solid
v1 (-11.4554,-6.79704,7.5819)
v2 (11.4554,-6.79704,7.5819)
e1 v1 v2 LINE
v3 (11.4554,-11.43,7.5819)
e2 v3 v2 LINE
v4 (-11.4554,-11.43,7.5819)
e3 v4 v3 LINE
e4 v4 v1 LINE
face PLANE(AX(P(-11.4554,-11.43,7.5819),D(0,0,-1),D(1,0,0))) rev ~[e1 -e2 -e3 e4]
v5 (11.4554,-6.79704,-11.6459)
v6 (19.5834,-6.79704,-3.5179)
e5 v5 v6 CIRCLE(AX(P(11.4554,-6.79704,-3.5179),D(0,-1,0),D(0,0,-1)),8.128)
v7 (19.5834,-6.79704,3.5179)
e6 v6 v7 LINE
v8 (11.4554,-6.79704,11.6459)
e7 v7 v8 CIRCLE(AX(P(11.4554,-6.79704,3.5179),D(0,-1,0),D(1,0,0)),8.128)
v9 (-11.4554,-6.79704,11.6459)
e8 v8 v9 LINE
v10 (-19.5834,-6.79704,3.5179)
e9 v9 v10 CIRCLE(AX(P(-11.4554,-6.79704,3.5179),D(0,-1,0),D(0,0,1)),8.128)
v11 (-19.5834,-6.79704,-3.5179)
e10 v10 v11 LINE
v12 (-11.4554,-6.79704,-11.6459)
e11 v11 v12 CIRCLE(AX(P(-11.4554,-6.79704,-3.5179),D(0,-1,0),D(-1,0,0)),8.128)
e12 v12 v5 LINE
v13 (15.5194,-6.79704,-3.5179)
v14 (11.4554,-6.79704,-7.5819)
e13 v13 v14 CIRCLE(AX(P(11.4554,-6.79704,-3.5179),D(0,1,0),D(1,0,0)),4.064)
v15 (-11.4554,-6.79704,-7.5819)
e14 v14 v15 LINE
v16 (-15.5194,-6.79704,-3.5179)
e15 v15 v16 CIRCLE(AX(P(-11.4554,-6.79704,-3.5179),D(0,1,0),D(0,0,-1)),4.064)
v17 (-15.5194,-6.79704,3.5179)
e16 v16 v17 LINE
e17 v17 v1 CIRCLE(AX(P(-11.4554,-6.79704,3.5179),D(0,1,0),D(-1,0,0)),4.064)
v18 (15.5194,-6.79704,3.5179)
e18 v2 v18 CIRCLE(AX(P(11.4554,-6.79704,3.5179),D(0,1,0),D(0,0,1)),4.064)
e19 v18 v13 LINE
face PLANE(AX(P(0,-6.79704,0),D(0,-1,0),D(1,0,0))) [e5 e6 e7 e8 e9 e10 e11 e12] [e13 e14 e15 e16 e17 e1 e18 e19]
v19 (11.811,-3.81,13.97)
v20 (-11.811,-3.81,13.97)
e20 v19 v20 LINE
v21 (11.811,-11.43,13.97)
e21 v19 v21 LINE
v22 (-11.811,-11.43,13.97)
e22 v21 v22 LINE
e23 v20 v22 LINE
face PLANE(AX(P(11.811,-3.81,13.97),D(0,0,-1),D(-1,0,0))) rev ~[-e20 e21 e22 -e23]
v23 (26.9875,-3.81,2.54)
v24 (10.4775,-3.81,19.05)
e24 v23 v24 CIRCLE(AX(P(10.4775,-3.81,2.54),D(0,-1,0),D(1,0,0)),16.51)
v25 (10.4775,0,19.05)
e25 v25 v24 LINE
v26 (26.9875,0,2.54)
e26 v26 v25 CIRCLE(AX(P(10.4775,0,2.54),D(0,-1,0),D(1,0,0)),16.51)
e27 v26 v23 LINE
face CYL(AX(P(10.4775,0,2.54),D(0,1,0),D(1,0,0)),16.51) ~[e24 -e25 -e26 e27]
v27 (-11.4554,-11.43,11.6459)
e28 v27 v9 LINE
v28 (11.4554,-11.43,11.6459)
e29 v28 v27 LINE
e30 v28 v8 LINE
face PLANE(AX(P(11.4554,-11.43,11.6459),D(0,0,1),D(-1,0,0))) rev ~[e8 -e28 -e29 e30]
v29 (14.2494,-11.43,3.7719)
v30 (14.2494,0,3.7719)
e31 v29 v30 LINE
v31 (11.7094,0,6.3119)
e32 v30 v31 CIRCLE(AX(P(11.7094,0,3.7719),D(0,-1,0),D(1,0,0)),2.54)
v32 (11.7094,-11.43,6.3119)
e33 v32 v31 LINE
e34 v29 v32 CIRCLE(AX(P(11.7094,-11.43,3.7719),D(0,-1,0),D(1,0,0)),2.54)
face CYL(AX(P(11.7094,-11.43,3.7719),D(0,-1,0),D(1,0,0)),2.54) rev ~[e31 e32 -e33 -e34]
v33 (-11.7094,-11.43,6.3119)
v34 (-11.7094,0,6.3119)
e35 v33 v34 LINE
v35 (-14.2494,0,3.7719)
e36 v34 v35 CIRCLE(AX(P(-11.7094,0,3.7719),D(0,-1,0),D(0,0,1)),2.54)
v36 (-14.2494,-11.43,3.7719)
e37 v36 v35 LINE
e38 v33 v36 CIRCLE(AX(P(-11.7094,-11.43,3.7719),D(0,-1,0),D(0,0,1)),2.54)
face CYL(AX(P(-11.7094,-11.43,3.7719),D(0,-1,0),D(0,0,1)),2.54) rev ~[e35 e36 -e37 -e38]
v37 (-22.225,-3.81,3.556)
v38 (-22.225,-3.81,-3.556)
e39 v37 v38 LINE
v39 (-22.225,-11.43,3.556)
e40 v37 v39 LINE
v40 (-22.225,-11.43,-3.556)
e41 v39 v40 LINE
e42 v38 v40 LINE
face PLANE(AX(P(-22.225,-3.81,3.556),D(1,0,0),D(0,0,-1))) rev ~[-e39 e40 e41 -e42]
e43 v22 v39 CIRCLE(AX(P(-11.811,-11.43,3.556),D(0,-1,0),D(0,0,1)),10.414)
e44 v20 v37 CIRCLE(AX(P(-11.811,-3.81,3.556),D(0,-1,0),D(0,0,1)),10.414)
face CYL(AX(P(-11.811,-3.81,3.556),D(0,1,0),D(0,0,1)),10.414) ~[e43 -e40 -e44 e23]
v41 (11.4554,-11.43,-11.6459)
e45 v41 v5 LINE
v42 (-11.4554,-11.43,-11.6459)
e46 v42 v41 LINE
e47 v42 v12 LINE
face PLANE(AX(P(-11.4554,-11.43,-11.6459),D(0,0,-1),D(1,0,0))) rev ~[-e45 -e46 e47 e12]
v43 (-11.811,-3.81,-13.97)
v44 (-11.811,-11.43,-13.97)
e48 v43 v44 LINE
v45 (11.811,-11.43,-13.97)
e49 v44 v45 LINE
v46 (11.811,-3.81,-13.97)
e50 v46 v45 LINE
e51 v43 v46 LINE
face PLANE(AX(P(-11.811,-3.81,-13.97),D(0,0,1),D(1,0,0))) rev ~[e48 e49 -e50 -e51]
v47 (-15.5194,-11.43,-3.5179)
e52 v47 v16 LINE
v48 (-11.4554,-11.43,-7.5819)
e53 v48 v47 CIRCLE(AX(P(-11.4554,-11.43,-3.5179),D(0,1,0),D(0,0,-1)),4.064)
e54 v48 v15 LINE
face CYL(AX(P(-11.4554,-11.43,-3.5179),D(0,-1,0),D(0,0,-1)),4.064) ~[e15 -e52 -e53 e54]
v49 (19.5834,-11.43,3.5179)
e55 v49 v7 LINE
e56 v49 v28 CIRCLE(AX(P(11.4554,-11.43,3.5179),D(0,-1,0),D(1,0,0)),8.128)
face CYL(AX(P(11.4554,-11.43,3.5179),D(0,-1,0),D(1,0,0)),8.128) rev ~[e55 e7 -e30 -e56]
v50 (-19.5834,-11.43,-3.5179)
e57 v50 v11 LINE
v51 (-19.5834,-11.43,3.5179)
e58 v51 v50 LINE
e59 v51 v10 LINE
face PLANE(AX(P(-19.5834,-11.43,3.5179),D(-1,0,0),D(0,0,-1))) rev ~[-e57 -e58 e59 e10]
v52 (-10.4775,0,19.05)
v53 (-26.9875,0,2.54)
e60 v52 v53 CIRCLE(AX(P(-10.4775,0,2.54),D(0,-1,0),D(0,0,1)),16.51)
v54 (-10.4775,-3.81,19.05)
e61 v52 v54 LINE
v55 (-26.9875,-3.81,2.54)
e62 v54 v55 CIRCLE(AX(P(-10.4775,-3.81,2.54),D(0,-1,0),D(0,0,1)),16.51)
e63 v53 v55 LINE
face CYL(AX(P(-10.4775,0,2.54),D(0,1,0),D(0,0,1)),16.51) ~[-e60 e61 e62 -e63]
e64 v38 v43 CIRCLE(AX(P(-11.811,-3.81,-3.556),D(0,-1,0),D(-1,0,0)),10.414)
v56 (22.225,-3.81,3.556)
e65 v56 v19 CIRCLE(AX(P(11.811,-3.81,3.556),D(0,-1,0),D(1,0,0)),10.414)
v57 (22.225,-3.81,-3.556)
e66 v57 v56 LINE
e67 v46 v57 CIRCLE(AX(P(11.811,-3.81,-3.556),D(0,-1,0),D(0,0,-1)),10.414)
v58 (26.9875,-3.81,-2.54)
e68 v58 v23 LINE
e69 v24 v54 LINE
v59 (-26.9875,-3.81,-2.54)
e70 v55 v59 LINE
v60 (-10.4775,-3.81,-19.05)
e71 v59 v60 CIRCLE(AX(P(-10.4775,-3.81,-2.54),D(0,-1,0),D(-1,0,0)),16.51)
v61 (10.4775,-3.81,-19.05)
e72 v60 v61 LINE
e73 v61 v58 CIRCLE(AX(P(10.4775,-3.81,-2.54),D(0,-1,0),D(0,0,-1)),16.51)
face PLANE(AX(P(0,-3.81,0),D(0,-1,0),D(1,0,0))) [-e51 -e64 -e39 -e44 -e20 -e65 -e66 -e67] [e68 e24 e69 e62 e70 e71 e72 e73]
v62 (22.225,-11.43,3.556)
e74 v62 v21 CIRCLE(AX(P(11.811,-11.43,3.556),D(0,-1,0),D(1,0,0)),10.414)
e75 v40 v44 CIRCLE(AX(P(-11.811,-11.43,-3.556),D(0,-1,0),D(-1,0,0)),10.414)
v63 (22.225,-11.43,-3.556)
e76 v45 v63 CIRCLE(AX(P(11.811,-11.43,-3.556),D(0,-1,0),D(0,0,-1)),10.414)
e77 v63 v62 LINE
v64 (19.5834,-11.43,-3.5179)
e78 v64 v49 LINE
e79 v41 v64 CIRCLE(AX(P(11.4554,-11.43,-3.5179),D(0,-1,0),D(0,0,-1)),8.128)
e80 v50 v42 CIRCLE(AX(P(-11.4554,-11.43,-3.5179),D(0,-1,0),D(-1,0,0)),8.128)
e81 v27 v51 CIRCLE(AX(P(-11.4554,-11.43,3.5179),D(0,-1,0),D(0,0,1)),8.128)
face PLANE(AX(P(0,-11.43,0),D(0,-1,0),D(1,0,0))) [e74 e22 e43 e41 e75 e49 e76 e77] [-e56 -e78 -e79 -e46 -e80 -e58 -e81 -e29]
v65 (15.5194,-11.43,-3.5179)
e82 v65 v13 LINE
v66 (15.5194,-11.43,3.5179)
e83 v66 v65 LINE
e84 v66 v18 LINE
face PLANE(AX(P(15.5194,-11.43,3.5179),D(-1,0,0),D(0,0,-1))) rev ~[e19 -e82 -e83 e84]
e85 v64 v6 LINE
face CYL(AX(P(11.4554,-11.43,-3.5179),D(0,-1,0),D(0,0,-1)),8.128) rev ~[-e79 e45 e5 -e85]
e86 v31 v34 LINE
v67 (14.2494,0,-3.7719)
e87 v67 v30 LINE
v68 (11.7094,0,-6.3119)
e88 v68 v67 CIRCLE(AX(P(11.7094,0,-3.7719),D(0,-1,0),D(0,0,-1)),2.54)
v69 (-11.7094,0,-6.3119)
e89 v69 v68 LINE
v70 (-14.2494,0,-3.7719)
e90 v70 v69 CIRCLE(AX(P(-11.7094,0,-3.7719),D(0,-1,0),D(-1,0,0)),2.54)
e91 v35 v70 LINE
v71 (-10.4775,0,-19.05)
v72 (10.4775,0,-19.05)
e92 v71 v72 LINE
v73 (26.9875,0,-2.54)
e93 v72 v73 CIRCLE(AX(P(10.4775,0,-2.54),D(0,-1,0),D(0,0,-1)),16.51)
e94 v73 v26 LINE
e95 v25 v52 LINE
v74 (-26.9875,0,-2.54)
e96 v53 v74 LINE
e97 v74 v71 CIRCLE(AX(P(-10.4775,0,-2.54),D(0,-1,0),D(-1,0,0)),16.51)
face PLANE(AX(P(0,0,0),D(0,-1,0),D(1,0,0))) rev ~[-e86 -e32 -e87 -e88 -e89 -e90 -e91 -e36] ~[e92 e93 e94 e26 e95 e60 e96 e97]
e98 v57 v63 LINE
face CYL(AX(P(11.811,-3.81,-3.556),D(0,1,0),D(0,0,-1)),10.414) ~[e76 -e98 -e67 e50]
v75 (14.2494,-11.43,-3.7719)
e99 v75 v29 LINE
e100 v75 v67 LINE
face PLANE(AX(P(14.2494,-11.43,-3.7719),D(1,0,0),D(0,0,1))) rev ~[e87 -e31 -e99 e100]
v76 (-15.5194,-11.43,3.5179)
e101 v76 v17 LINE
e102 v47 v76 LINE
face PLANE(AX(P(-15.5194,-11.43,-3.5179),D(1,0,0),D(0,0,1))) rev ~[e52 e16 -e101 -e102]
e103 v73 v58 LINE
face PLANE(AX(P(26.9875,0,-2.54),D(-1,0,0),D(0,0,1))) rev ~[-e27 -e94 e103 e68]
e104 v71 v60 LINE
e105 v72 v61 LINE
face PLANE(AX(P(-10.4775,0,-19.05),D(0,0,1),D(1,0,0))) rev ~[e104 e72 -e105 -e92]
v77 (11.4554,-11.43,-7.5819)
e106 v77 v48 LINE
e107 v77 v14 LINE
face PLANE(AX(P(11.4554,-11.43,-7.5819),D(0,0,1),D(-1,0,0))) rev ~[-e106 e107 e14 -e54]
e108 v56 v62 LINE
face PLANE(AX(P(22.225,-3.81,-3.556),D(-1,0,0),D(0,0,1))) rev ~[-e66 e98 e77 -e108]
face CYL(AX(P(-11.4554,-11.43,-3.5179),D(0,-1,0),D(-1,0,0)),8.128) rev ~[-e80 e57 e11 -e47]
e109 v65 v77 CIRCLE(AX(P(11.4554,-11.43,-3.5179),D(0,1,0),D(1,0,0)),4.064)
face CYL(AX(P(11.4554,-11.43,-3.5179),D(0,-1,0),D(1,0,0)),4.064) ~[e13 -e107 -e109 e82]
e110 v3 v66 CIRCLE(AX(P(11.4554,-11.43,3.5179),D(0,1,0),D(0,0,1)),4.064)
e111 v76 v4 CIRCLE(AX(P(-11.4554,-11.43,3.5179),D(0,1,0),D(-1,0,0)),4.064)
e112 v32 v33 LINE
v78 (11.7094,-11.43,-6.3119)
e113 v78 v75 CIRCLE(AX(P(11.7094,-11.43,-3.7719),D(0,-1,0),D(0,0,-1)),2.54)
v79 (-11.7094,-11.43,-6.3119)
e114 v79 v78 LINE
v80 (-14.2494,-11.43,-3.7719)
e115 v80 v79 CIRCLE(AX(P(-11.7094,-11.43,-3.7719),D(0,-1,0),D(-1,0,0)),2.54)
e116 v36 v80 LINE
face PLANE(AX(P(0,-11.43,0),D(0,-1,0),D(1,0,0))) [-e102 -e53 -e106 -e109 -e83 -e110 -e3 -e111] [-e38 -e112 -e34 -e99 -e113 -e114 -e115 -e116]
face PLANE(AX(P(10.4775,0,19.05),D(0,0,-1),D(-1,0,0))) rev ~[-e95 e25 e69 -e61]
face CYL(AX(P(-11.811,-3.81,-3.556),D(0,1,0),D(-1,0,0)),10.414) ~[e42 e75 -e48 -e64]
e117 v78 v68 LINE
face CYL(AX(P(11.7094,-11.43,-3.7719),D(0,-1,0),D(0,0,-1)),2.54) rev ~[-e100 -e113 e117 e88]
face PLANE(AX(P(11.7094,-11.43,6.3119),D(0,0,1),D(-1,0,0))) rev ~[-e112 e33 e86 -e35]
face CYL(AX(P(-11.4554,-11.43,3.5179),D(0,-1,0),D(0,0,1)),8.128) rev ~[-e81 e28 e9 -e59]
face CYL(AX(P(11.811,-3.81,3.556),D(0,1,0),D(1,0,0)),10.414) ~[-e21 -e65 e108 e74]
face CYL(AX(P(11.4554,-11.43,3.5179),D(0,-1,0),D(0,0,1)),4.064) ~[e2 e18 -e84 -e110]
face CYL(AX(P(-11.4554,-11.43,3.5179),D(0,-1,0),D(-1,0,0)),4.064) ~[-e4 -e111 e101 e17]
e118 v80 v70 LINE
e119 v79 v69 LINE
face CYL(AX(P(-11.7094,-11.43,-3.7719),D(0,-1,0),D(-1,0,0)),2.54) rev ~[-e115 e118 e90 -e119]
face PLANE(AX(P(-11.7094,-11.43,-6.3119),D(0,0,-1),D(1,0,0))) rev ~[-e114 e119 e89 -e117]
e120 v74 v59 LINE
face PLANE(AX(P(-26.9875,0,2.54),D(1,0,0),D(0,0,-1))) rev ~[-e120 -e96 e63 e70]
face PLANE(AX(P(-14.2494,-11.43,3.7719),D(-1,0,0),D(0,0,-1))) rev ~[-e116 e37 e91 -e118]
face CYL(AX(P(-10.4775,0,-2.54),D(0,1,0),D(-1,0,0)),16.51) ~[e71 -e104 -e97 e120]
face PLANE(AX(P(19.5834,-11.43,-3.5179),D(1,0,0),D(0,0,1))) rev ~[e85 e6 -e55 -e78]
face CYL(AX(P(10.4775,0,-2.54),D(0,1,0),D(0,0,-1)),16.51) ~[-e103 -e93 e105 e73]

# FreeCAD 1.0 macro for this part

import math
import FreeCAD as App
import Part
import Sketcher

V = App.Vector
Q = App.Units.Quantity

doc = App.newDocument("Part")
body = doc.addObject("PartDesign::Body", "Body")

# Sketch on XZ plane
sketch1 = body.newObject("Sketcher::SketchObject", "Sketch")
sketch1.AttachmentSupport = (doc.getObject("XZ_Plane"), [""])
sketch1.MapMode = "FlatFace"
sketch1.addGeometry([
    Part.ArcOfCircle(Part.Circle(V(-10, -3, 0), V(0, 0, 1), 17), math.radians(180), math.radians(270)),  # 0
    Part.LineSegment(V(-10, -19, 0), V(10, -19, 0)),  # 1
    Part.ArcOfCircle(Part.Circle(V(10, -3, 0), V(0, 0, 1), 17), math.radians(-90), math.radians(0)),  # 2
    Part.LineSegment(V(27, -3, 0), V(27, 3, 0)),  # 3
    Part.ArcOfCircle(Part.Circle(V(10, 3, 0), V(0, 0, 1), 17), math.radians(0), math.radians(90)),  # 4
    Part.LineSegment(V(10, 19, 0), V(-10, 19, 0)),  # 5
    Part.ArcOfCircle(Part.Circle(V(-10, 3, 0), V(0, 0, 1), 17), math.radians(90), math.radians(180)),  # 6
    Part.LineSegment(V(-27, 3, 0), V(-27, -3, 0)),  # 7
], False)
sketch1.addConstraint([
    Sketcher.Constraint("Tangent", 0, 2, 1, 1),
    Sketcher.Constraint("Tangent", 1, 2, 2, 1),
    Sketcher.Constraint("Tangent", 2, 2, 3, 1),
    Sketcher.Constraint("Tangent", 3, 2, 4, 1),
    Sketcher.Constraint("Tangent", 4, 2, 5, 1),
    Sketcher.Constraint("Tangent", 5, 2, 6, 1),
    Sketcher.Constraint("Tangent", 6, 2, 7, 1),
    Sketcher.Constraint("Tangent", 7, 2, 0, 1),
    Sketcher.Constraint("Horizontal", 1),
    Sketcher.Constraint("Vertical", 3),
    Sketcher.Constraint("Horizontal", 5),
    Sketcher.Constraint("Vertical", 7),
    Sketcher.Constraint("Equal", 0, 2),
    Sketcher.Constraint("Equal", 2, 4),
    Sketcher.Constraint("Equal", 4, 6),
    Sketcher.Constraint("Symmetric", 0, 3, 4, 3, -1, 1),
    Sketcher.Constraint("Radius", 0, Q("0.65 in")),
    Sketcher.Constraint("DistanceY", 3, 1, 3, 2, Q("0.2 in")),
    Sketcher.Constraint("DistanceX", 1, 1, 1, 2, Q("0.825 in")),
])
pad1 = body.newObject("PartDesign::Pad", "Pad")
pad1.Profile = sketch1
pad1.Length = Q("0.15 in")

# Sketch on XZ plane
sketch2 = body.newObject("Sketcher::SketchObject", "Sketch001")
sketch2.AttachmentSupport = (doc.getObject("XZ_Plane"), [""])
sketch2.MapMode = "FlatFace"
sketch2.AttachmentOffset = App.Placement(V(0, 0, 0.15 * 25.4), App.Rotation())
sketch2.addGeometry([
    Part.ArcOfCircle(Part.Circle(V(-12, -4, 0), V(0, 0, 1), 10), math.radians(180), math.radians(270)),  # 0
    Part.LineSegment(V(-12, -14, 0), V(12, -14, 0)),  # 1
    Part.ArcOfCircle(Part.Circle(V(12, -4, 0), V(0, 0, 1), 10), math.radians(-90), math.radians(0)),  # 2
    Part.LineSegment(V(22, -4, 0), V(22, 4, 0)),  # 3
    Part.ArcOfCircle(Part.Circle(V(12, 4, 0), V(0, 0, 1), 10), math.radians(0), math.radians(90)),  # 4
    Part.LineSegment(V(12, 14, 0), V(-12, 14, 0)),  # 5
    Part.ArcOfCircle(Part.Circle(V(-12, 4, 0), V(0, 0, 1), 10), math.radians(90), math.radians(180)),  # 6
    Part.LineSegment(V(-22, 4, 0), V(-22, -4, 0)),  # 7
], False)
sketch2.addConstraint([
    Sketcher.Constraint("Tangent", 0, 2, 1, 1),
    Sketcher.Constraint("Tangent", 1, 2, 2, 1),
    Sketcher.Constraint("Tangent", 2, 2, 3, 1),
    Sketcher.Constraint("Tangent", 3, 2, 4, 1),
    Sketcher.Constraint("Tangent", 4, 2, 5, 1),
    Sketcher.Constraint("Tangent", 5, 2, 6, 1),
    Sketcher.Constraint("Tangent", 6, 2, 7, 1),
    Sketcher.Constraint("Tangent", 7, 2, 0, 1),
    Sketcher.Constraint("Horizontal", 1),
    Sketcher.Constraint("Vertical", 3),
    Sketcher.Constraint("Horizontal", 5),
    Sketcher.Constraint("Vertical", 7),
    Sketcher.Constraint("Equal", 0, 2),
    Sketcher.Constraint("Equal", 2, 4),
    Sketcher.Constraint("Equal", 4, 6),
    Sketcher.Constraint("Symmetric", 0, 3, 4, 3, -1, 1),
    Sketcher.Constraint("Radius", 0, Q("0.41 in")),
    Sketcher.Constraint("DistanceX", 1, 1, 1, 2, Q("0.93 in")),
    Sketcher.Constraint("DistanceY", 3, 1, 3, 2, Q("0.28 in")),
])
pad2 = body.newObject("PartDesign::Pad", "Pad001")
pad2.Profile = sketch2
pad2.Length = Q("0.3 in")

# Sketch on XZ plane
sketch3 = body.newObject("Sketcher::SketchObject", "Sketch002")
sketch3.AttachmentSupport = (doc.getObject("XZ_Plane"), [""])
sketch3.MapMode = "FlatFace"
sketch3.AttachmentOffset = App.Placement(V(0, 0, 0.45 * 25.4), App.Rotation())
sketch3.addGeometry([
    Part.ArcOfCircle(Part.Circle(V(-11.7, -3.8, 0), V(0, 0, 1), 2.5), math.radians(180), math.radians(270)),  # 0
    Part.LineSegment(V(-11.7, -6.3, 0), V(11.7, -6.3, 0)),  # 1
    Part.ArcOfCircle(Part.Circle(V(11.7, -3.8, 0), V(0, 0, 1), 2.5), math.radians(-90), math.radians(0)),  # 2
    Part.LineSegment(V(14.2, -3.8, 0), V(14.2, 3.8, 0)),  # 3
    Part.ArcOfCircle(Part.Circle(V(11.7, 3.8, 0), V(0, 0, 1), 2.5), math.radians(0), math.radians(90)),  # 4
    Part.LineSegment(V(11.7, 6.3, 0), V(-11.7, 6.3, 0)),  # 5
    Part.ArcOfCircle(Part.Circle(V(-11.7, 3.8, 0), V(0, 0, 1), 2.5), math.radians(90), math.radians(180)),  # 6
    Part.LineSegment(V(-14.2, 3.8, 0), V(-14.2, -3.8, 0)),  # 7
], False)
sketch3.addConstraint([
    Sketcher.Constraint("Tangent", 0, 2, 1, 1),
    Sketcher.Constraint("Tangent", 1, 2, 2, 1),
    Sketcher.Constraint("Tangent", 2, 2, 3, 1),
    Sketcher.Constraint("Tangent", 3, 2, 4, 1),
    Sketcher.Constraint("Tangent", 4, 2, 5, 1),
    Sketcher.Constraint("Tangent", 5, 2, 6, 1),
    Sketcher.Constraint("Tangent", 6, 2, 7, 1),
    Sketcher.Constraint("Tangent", 7, 2, 0, 1),
    Sketcher.Constraint("Horizontal", 1),
    Sketcher.Constraint("Vertical", 3),
    Sketcher.Constraint("Horizontal", 5),
    Sketcher.Constraint("Vertical", 7),
    Sketcher.Constraint("Equal", 0, 2),
    Sketcher.Constraint("Equal", 2, 4),
    Sketcher.Constraint("Equal", 4, 6),
    Sketcher.Constraint("Symmetric", 0, 3, 4, 3, -1, 1),
    Sketcher.Constraint("Radius", 0, Q("0.1 in")),
    Sketcher.Constraint("DistanceX", 1, 1, 1, 2, Q("0.922 in")),
    Sketcher.Constraint("DistanceY", 3, 1, 3, 2, Q("0.297 in")),
])
pocket1 = body.newObject("PartDesign::Pocket", "Pocket")
pocket1.Profile = sketch3
pocket1.Type = "ThroughAll"

# Sketch on XZ plane
sketch4 = body.newObject("Sketcher::SketchObject", "Sketch003")
sketch4.AttachmentSupport = (doc.getObject("XZ_Plane"), [""])
sketch4.MapMode = "FlatFace"
sketch4.AttachmentOffset = App.Placement(V(0, 0, 0.45 * 25.4), App.Rotation())
sketch4.addGeometry([
    Part.LineSegment(V(11.5, 11.6, 0), V(-11.5, 11.6, 0)),  # 0
    Part.ArcOfCircle(Part.Circle(V(-11.5, 3.5, 0), V(0, 0, 1), 8.1), math.radians(90), math.radians(180)),  # 1
    Part.LineSegment(V(-19.6, 3.5, 0), V(-19.6, -3.5, 0)),  # 2
    Part.ArcOfCircle(Part.Circle(V(-11.5, -3.5, 0), V(0, 0, 1), 8.1), math.radians(180), math.radians(270)),  # 3
    Part.LineSegment(V(-11.5, -11.6, 0), V(11.5, -11.6, 0)),  # 4
    Part.ArcOfCircle(Part.Circle(V(11.5, -3.5, 0), V(0, 0, 1), 8.1), math.radians(-90), math.radians(0)),  # 5
    Part.LineSegment(V(19.6, -3.5, 0), V(19.6, 3.5, 0)),  # 6
    Part.ArcOfCircle(Part.Circle(V(11.5, 3.5, 0), V(0, 0, 1), 8.1), math.radians(0), math.radians(90)),  # 7
    Part.ArcOfCircle(Part.Circle(V(11.5, -3.5, 0), V(0, 0, 1), 4.1), math.radians(-90), math.radians(0)),  # 8
    Part.LineSegment(V(11.5, -7.6, 0), V(-11.5, -7.6, 0)),  # 9
    Part.ArcOfCircle(Part.Circle(V(-11.5, -3.5, 0), V(0, 0, 1), 4.1), math.radians(180), math.radians(270)),  # 10
    Part.LineSegment(V(-15.5, -3.5, 0), V(-15.5, 3.5, 0)),  # 11
    Part.ArcOfCircle(Part.Circle(V(-11.5, 3.5, 0), V(0, 0, 1), 4.1), math.radians(90), math.radians(180)),  # 12
    Part.LineSegment(V(-11.5, 7.6, 0), V(11.5, 7.6, 0)),  # 13
    Part.ArcOfCircle(Part.Circle(V(11.5, 3.5, 0), V(0, 0, 1), 4.1), math.radians(0), math.radians(90)),  # 14
    Part.LineSegment(V(15.5, 3.5, 0), V(15.5, -3.5, 0)),  # 15
], False)
sketch4.addConstraint([
    Sketcher.Constraint("Tangent", 0, 2, 1, 1),
    Sketcher.Constraint("Tangent", 1, 2, 2, 1),
    Sketcher.Constraint("Tangent", 2, 2, 3, 1),
    Sketcher.Constraint("Tangent", 3, 2, 4, 1),
    Sketcher.Constraint("Tangent", 4, 2, 5, 1),
    Sketcher.Constraint("Tangent", 5, 2, 6, 1),
    Sketcher.Constraint("Tangent", 6, 2, 7, 1),
    Sketcher.Constraint("Tangent", 7, 2, 0, 1),
    Sketcher.Constraint("Tangent", 8, 1, 9, 1),
    Sketcher.Constraint("Tangent", 9, 2, 10, 2),
    Sketcher.Constraint("Tangent", 10, 1, 11, 1),
    Sketcher.Constraint("Tangent", 11, 2, 12, 2),
    Sketcher.Constraint("Tangent", 12, 1, 13, 1),
    Sketcher.Constraint("Tangent", 13, 2, 14, 2),
    Sketcher.Constraint("Tangent", 14, 1, 15, 1),
    Sketcher.Constraint("Tangent", 15, 2, 8, 2),
    Sketcher.Constraint("Horizontal", 0),
    Sketcher.Constraint("Vertical", 2),
    Sketcher.Constraint("Horizontal", 4),
    Sketcher.Constraint("Vertical", 6),
    Sketcher.Constraint("Horizontal", 9),
    Sketcher.Constraint("Vertical", 11),
    Sketcher.Constraint("Horizontal", 13),
    Sketcher.Constraint("Vertical", 15),
    Sketcher.Constraint("Coincident", 8, 3, 5, 3),
    Sketcher.Constraint("Coincident", 10, 3, 3, 3),
    Sketcher.Constraint("Coincident", 12, 3, 1, 3),
    Sketcher.Constraint("Equal", 1, 3),
    Sketcher.Constraint("Equal", 3, 5),
    Sketcher.Constraint("Equal", 5, 7),
    Sketcher.Constraint("Equal", 12, 14),
    Sketcher.Constraint("Symmetric", 1, 3, 5, 3, -1, 1),
    Sketcher.Constraint("Radius", 1, Q("0.32 in")),
    Sketcher.Constraint("Radius", 8, Q("0.16 in")),
    Sketcher.Constraint("DistanceX", 0, 2, 0, 1, Q("0.902 in")),
    Sketcher.Constraint("DistanceY", 2, 2, 2, 1, Q("0.277 in")),
])
pocket2 = body.newObject("PartDesign::Pocket", "Pocket001")
pocket2.Profile = sketch4
pocket2.Length = Q("0.1824 in")

doc.recompute()
